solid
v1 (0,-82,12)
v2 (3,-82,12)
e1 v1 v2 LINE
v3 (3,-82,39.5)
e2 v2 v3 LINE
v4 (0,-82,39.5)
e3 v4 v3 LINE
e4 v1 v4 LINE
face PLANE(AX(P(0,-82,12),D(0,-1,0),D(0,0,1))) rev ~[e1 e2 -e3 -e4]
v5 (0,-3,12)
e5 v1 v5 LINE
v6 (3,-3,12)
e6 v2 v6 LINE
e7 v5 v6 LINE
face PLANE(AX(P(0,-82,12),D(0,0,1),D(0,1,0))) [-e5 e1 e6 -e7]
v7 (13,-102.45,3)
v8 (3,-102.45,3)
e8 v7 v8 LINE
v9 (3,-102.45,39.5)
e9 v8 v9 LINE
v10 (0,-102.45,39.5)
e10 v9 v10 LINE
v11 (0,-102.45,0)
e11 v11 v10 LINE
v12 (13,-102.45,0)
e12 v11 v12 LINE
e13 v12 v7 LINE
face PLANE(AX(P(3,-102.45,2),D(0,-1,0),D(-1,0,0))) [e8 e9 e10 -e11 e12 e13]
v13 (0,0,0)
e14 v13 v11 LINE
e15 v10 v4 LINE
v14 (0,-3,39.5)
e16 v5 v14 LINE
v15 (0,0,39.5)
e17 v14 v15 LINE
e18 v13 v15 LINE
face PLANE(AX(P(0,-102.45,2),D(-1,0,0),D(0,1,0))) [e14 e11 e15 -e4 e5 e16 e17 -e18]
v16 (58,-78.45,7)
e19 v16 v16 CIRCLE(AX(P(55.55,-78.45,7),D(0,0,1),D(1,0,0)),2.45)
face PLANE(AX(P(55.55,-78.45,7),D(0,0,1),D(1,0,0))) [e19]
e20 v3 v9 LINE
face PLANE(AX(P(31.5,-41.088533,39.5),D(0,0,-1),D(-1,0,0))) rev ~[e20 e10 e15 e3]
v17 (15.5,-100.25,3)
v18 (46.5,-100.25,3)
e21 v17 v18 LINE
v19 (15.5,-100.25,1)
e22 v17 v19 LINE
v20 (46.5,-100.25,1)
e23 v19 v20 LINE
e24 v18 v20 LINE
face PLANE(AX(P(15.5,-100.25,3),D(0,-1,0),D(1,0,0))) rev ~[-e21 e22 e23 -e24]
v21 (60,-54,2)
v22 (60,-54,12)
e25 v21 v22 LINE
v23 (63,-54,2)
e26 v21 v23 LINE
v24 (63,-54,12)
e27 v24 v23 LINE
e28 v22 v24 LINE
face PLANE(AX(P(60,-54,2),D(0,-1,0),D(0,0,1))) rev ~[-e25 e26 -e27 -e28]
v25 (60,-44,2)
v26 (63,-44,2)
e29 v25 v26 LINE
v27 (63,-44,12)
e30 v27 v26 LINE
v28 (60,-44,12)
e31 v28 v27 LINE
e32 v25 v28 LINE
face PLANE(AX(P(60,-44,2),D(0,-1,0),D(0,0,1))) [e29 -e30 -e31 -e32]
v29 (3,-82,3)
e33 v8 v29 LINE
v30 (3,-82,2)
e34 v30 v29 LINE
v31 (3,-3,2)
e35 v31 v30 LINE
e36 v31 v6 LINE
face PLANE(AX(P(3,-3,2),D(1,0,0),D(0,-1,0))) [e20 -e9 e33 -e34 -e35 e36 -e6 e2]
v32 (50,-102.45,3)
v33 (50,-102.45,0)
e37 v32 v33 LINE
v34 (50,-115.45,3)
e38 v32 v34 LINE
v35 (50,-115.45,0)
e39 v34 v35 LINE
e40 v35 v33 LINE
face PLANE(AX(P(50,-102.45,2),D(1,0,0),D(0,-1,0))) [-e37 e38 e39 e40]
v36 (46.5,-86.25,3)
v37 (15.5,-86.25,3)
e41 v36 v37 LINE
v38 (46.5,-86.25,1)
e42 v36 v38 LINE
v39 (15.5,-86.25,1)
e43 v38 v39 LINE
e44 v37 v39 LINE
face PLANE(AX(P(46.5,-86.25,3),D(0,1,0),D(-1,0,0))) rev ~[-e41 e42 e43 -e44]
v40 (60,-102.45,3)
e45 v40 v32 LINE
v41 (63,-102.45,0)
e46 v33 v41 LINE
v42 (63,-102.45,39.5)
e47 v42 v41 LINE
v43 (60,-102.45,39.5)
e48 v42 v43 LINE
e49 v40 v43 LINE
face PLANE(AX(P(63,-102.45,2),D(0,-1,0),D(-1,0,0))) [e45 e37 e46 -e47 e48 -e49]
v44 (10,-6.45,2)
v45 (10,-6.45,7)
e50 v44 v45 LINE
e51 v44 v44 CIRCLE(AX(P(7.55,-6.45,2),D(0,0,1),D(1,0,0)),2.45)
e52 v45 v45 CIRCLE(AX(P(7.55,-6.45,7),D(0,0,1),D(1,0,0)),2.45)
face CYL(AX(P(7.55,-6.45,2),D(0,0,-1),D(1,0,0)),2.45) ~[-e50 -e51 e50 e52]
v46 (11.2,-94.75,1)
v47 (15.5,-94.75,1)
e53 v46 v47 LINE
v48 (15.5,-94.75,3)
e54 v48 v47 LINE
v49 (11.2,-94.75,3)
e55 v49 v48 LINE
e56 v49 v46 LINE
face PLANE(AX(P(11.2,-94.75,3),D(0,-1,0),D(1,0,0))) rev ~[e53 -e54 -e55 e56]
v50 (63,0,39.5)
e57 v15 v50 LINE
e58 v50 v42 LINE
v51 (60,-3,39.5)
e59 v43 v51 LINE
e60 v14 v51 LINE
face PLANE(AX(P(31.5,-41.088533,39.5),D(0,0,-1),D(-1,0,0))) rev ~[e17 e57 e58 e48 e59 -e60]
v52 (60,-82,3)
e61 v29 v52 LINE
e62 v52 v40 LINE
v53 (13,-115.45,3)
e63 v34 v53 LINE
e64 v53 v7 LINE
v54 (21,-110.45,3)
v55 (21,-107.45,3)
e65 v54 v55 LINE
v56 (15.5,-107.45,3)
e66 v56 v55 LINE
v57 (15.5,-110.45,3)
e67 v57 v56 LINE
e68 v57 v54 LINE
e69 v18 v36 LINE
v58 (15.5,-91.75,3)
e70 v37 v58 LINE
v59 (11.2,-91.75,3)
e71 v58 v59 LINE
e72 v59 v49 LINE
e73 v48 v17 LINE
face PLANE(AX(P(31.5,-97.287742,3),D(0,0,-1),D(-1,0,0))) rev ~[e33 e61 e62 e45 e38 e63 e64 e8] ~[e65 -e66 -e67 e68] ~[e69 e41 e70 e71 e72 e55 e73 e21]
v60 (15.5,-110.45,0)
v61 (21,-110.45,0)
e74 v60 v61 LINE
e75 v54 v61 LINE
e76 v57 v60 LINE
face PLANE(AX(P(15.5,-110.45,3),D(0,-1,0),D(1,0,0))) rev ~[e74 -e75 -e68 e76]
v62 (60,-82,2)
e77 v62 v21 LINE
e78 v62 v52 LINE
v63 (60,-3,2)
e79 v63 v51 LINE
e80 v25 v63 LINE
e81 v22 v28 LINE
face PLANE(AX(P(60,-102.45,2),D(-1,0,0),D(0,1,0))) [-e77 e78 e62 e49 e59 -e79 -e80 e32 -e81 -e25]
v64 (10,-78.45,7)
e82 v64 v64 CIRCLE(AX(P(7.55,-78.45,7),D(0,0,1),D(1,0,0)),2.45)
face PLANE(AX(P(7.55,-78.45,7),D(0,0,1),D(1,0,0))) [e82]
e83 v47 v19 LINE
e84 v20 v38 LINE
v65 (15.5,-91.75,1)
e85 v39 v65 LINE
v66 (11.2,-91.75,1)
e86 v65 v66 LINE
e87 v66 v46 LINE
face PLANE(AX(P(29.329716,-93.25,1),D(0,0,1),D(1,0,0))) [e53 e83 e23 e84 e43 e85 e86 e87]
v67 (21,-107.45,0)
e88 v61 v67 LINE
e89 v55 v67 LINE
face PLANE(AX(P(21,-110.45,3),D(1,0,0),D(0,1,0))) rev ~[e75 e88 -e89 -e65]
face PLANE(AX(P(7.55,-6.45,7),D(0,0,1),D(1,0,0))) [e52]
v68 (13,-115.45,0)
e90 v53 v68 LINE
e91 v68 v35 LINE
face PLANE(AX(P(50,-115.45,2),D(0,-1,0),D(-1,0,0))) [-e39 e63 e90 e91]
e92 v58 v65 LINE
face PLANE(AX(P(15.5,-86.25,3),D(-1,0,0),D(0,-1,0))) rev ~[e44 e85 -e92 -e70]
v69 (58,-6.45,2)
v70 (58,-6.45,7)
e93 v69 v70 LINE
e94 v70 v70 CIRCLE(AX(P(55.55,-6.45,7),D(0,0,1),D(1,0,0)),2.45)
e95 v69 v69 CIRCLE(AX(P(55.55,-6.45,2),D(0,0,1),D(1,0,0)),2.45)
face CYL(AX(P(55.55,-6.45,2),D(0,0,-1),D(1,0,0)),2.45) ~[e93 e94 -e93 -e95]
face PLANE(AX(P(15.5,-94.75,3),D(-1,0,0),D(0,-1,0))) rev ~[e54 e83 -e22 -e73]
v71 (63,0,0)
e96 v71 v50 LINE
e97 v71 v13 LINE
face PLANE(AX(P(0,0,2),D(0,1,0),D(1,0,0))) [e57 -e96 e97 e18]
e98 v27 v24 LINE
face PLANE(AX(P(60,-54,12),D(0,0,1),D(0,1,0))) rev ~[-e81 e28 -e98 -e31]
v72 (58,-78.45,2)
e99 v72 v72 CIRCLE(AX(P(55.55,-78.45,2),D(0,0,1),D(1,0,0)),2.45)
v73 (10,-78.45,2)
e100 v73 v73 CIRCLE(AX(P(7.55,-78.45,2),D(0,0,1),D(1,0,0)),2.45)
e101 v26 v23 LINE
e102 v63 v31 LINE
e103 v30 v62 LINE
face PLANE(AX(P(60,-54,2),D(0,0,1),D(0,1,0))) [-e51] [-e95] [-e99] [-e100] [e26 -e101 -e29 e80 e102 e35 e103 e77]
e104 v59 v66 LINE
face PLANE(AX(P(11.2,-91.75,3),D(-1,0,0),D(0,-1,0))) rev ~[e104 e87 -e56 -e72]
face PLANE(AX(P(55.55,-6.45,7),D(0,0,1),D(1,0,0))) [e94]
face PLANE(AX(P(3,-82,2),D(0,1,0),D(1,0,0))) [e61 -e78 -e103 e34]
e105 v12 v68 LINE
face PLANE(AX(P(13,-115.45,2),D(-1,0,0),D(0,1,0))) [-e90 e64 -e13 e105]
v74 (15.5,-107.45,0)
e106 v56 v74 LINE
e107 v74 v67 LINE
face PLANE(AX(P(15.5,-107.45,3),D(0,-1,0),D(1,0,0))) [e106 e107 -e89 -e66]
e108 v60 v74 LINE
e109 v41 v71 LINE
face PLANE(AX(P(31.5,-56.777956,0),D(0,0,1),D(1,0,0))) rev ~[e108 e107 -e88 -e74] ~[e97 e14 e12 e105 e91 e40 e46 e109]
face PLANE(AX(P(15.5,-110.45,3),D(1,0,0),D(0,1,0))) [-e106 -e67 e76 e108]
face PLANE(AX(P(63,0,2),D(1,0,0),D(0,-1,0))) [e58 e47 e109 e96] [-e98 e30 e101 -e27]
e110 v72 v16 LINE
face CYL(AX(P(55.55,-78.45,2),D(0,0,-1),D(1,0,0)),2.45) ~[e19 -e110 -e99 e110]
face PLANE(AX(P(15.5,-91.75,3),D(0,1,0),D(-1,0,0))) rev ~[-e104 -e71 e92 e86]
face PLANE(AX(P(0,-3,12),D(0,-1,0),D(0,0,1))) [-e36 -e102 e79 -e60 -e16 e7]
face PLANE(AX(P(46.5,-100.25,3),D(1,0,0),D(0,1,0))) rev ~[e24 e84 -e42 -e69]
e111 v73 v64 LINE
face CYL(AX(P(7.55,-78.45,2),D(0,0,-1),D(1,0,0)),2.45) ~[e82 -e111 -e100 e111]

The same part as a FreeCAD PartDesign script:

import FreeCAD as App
import Part
import Sketcher
from FreeCAD import Vector
Q = App.Units.Quantity

doc = App.newDocument("Part")
body = doc.addObject("PartDesign::Body", "Body")

sketch1 = doc.addObject("Sketcher::SketchObject", "Sketch")
body.addObject(sketch1)
sketch1.AttachmentSupport = (doc.XY_Plane, [""])
sketch1.MapMode = "FlatFace"
sketch1.addGeometry(Part.LineSegment(Vector(13, -102, 0), Vector(13, -115, 0)), False)
sketch1.addGeometry(Part.LineSegment(Vector(13, -115, 0), Vector(50, -115, 0)), False)
sketch1.addGeometry(Part.LineSegment(Vector(50, -115, 0), Vector(50, -102, 0)), False)
sketch1.addGeometry(Part.LineSegment(Vector(50, -102, 0), Vector(63, -102, 0)), False)
sketch1.addGeometry(Part.LineSegment(Vector(63, -102, 0), Vector(63, 0, 0)), False)
sketch1.addGeometry(Part.LineSegment(Vector(63, 0, 0), Vector(0, 0, 0)), False)
sketch1.addGeometry(Part.LineSegment(Vector(0, 0, 0), Vector(0, -102, 0)), False)
sketch1.addGeometry(Part.LineSegment(Vector(0, -102, 0), Vector(13, -102, 0)), False)
sketch1.addConstraint(Sketcher.Constraint("Coincident", 0, 2, 1, 1))
sketch1.addConstraint(Sketcher.Constraint("Coincident", 1, 2, 2, 1))
sketch1.addConstraint(Sketcher.Constraint("Coincident", 2, 2, 3, 1))
sketch1.addConstraint(Sketcher.Constraint("Coincident", 3, 2, 4, 1))
sketch1.addConstraint(Sketcher.Constraint("Coincident", 4, 2, 5, 1))
sketch1.addConstraint(Sketcher.Constraint("Coincident", 5, 2, 6, 1))
sketch1.addConstraint(Sketcher.Constraint("Coincident", 6, 2, 7, 1))
sketch1.addConstraint(Sketcher.Constraint("Coincident", 7, 2, 0, 1))
sketch1.addConstraint(Sketcher.Constraint("Vertical", 0))
sketch1.addConstraint(Sketcher.Constraint("Horizontal", 1))
sketch1.addConstraint(Sketcher.Constraint("Vertical", 2))
sketch1.addConstraint(Sketcher.Constraint("Horizontal", 3))
sketch1.addConstraint(Sketcher.Constraint("Vertical", 4))
sketch1.addConstraint(Sketcher.Constraint("Horizontal", 5))
sketch1.addConstraint(Sketcher.Constraint("Vertical", 6))
sketch1.addConstraint(Sketcher.Constraint("Horizontal", 7))
sketch1.addConstraint(Sketcher.Constraint("Coincident", 5, 2, -1, 1))
sketch1.addConstraint(Sketcher.Constraint("Horizontal", 3, 2, 6, 2))
sketch1.addConstraint(Sketcher.Constraint("Equal", 3, 7))
sketch1.addConstraint(Sketcher.Constraint("Equal", 7, 0))
sketch1.addConstraint(Sketcher.Constraint("DistanceX", 1, 1, 1, 2, Q("37 mm")))
sketch1.addConstraint(Sketcher.Constraint("DistanceX", 3, 1, 3, 2, Q("13 mm")))
sketch1.addConstraint(Sketcher.Constraint("DistanceY", 4, 1, 4, 2, Q("102.45 mm")))
pad1 = doc.addObject("PartDesign::Pad", "Pad")
body.addObject(pad1)
pad1.Profile = sketch1
pad1.Length = 2

sketch2 = doc.addObject("Sketcher::SketchObject", "Sketch001")
body.addObject(sketch2)
sketch2.AttachmentSupport = (doc.XY_Plane, [""])
sketch2.MapMode = "FlatFace"
sketch2.AttachmentOffset = App.Placement(Vector(0, 0, 2), App.Rotation())
sketch2.addGeometry(Part.Circle(Vector(7.5, -6.5, 0), Vector(0, 0, 1), 2.5), False)
sketch2.addGeometry(Part.Circle(Vector(7.5, -78.5, 0), Vector(0, 0, 1), 2.5), False)
sketch2.addGeometry(Part.Circle(Vector(55.5, -78.5, 0), Vector(0, 0, 1), 2.5), False)
sketch2.addGeometry(Part.Circle(Vector(55.5, -6.5, 0), Vector(0, 0, 1), 2.5), False)
sketch2.addConstraint(Sketcher.Constraint("Equal", 0, 1))
sketch2.addConstraint(Sketcher.Constraint("Equal", 1, 2))
sketch2.addConstraint(Sketcher.Constraint("Equal", 2, 3))
sketch2.addConstraint(Sketcher.Constraint("Horizontal", 1, 3, 2, 3))
sketch2.addConstraint(Sketcher.Constraint("Horizontal", 0, 3, 3, 3))
sketch2.addConstraint(Sketcher.Constraint("Vertical", 0, 3, 1, 3))
sketch2.addConstraint(Sketcher.Constraint("Vertical", 2, 3, 3, 3))
sketch2.addConstraint(Sketcher.Constraint("Diameter", 0, Q("4.9 mm")))
sketch2.addConstraint(Sketcher.Constraint("DistanceY", 1, 3, 0, 3, Q("72 mm")))
sketch2.addConstraint(Sketcher.Constraint("DistanceX", 1, 3, 2, 3, Q("48 mm")))
sketch2.addConstraint(Sketcher.Constraint("DistanceX", -1, 1, 0, 3, Q("7.55 mm")))
sketch2.addConstraint(Sketcher.Constraint("DistanceY", 0, 3, -1, 1, Q("6.45 mm")))
pad2 = doc.addObject("PartDesign::Pad", "Pad001")
body.addObject(pad2)
pad2.Profile = sketch2
pad2.Length = 5

sketch3 = doc.addObject("Sketcher::SketchObject", "Sketch002")
body.addObject(sketch3)
sketch3.AttachmentSupport = (doc.XY_Plane, [""])
sketch3.MapMode = "FlatFace"
sketch3.AttachmentOffset = App.Placement(Vector(0, 0, 2), App.Rotation())
sketch3.addGeometry(Part.LineSegment(Vector(63, -102.5, 0), Vector(63, 0, 0)), False)
sketch3.addGeometry(Part.LineSegment(Vector(63, 0, 0), Vector(0, 0, 0)), False)
sketch3.addGeometry(Part.LineSegment(Vector(0, 0, 0), Vector(0, -102.5, 0)), False)
sketch3.addGeometry(Part.LineSegment(Vector(0, -102.5, 0), Vector(3, -102.5, 0)), False)
sketch3.addGeometry(Part.LineSegment(Vector(3, -102.5, 0), Vector(3, -3, 0)), False)
sketch3.addGeometry(Part.LineSegment(Vector(3, -3, 0), Vector(60, -3, 0)), False)
sketch3.addGeometry(Part.LineSegment(Vector(60, -3, 0), Vector(60, -102.5, 0)), False)
sketch3.addGeometry(Part.LineSegment(Vector(60, -102.5, 0), Vector(63, -102.5, 0)), False)
sketch3.addConstraint(Sketcher.Constraint("Coincident", 0, 2, 1, 1))
sketch3.addConstraint(Sketcher.Constraint("Coincident", 1, 2, 2, 1))
sketch3.addConstraint(Sketcher.Constraint("Coincident", 2, 2, 3, 1))
sketch3.addConstraint(Sketcher.Constraint("Coincident", 3, 2, 4, 1))
sketch3.addConstraint(Sketcher.Constraint("Coincident", 4, 2, 5, 1))
sketch3.addConstraint(Sketcher.Constraint("Coincident", 5, 2, 6, 1))
sketch3.addConstraint(Sketcher.Constraint("Coincident", 6, 2, 7, 1))
sketch3.addConstraint(Sketcher.Constraint("Coincident", 7, 2, 0, 1))
sketch3.addConstraint(Sketcher.Constraint("Vertical", 0))
sketch3.addConstraint(Sketcher.Constraint("Horizontal", 1))
sketch3.addConstraint(Sketcher.Constraint("Vertical", 2))
sketch3.addConstraint(Sketcher.Constraint("Horizontal", 3))
sketch3.addConstraint(Sketcher.Constraint("Vertical", 4))
sketch3.addConstraint(Sketcher.Constraint("Horizontal", 5))
sketch3.addConstraint(Sketcher.Constraint("Vertical", 6))
sketch3.addConstraint(Sketcher.Constraint("Horizontal", 7))
sketch3.addConstraint(Sketcher.Constraint("Coincident", 1, 2, -1, 1))
sketch3.addConstraint(Sketcher.Constraint("Horizontal", 3, 2, 6, 2))
sketch3.addConstraint(Sketcher.Constraint("Equal", 3, 7))
sketch3.addConstraint(Sketcher.Constraint("DistanceX", 1, 2, 1, 1, Q("63 mm")))
sketch3.addConstraint(Sketcher.Constraint("DistanceX", 3, 1, 3, 2, Q("3 mm")))
sketch3.addConstraint(Sketcher.Constraint("DistanceY", 4, 2, -1, 1, Q("3 mm")))
sketch3.addConstraint(Sketcher.Constraint("DistanceY", 0, 1, 0, 2, Q("102.45 mm")))
pad3 = doc.addObject("PartDesign::Pad", "Pad002")
body.addObject(pad3)
pad3.Profile = sketch3
pad3.Length = 37.5

sketch4 = doc.addObject("Sketcher::SketchObject", "Sketch003")
body.addObject(sketch4)
sketch4.AttachmentSupport = (doc.YZ_Plane, [""])
sketch4.MapMode = "FlatFace"
sketch4.AttachmentOffset = App.Placement(Vector(0, 0, 60), App.Rotation())
sketch4.addGeometry(Part.LineSegment(Vector(-44, 2, 0), Vector(-54, 2, 0)), False)
sketch4.addGeometry(Part.LineSegment(Vector(-54, 2, 0), Vector(-54, 12, 0)), False)
sketch4.addGeometry(Part.LineSegment(Vector(-54, 12, 0), Vector(-44, 12, 0)), False)
sketch4.addGeometry(Part.LineSegment(Vector(-44, 12, 0), Vector(-44, 2, 0)), False)
sketch4.addConstraint(Sketcher.Constraint("Coincident", 0, 2, 1, 1))
sketch4.addConstraint(Sketcher.Constraint("Coincident", 1, 2, 2, 1))
sketch4.addConstraint(Sketcher.Constraint("Coincident", 2, 2, 3, 1))
sketch4.addConstraint(Sketcher.Constraint("Coincident", 3, 2, 0, 1))
sketch4.addConstraint(Sketcher.Constraint("Horizontal", 0))
sketch4.addConstraint(Sketcher.Constraint("Vertical", 1))
sketch4.addConstraint(Sketcher.Constraint("Horizontal", 2))
sketch4.addConstraint(Sketcher.Constraint("Vertical", 3))
sketch4.addConstraint(Sketcher.Constraint("Equal", 2, 1))
sketch4.addConstraint(Sketcher.Constraint("DistanceX", 0, 2, 0, 1, Q("10 mm")))
sketch4.addConstraint(Sketcher.Constraint("DistanceX", 0, 2, -1, 1, Q("54 mm")))
sketch4.addConstraint(Sketcher.Constraint("DistanceY", -1, 1, 0, 2, Q("2 mm")))
pocket1 = doc.addObject("PartDesign::Pocket", "Pocket")
body.addObject(pocket1)
pocket1.Profile = sketch4
pocket1.Type = "ThroughAll"
pocket1.Reversed = True

sketch5 = doc.addObject("Sketcher::SketchObject", "Sketch004")
body.addObject(sketch5)
sketch5.AttachmentSupport = (doc.YZ_Plane, [""])
sketch5.MapMode = "FlatFace"
sketch5.addGeometry(Part.LineSegment(Vector(-3, 12, 0), Vector(-82, 12, 0)), False)
sketch5.addGeometry(Part.LineSegment(Vector(-82, 12, 0), Vector(-82, 40, 0)), False)
sketch5.addGeometry(Part.LineSegment(Vector(-82, 40, 0), Vector(-3, 40, 0)), False)
sketch5.addGeometry(Part.LineSegment(Vector(-3, 40, 0), Vector(-3, 12, 0)), False)
sketch5.addConstraint(Sketcher.Constraint("Coincident", 0, 2, 1, 1))
sketch5.addConstraint(Sketcher.Constraint("Coincident", 1, 2, 2, 1))
sketch5.addConstraint(Sketcher.Constraint("Coincident", 2, 2, 3, 1))
sketch5.addConstraint(Sketcher.Constraint("Coincident", 3, 2, 0, 1))
sketch5.addConstraint(Sketcher.Constraint("Horizontal", 0))
sketch5.addConstraint(Sketcher.Constraint("Vertical", 1))
sketch5.addConstraint(Sketcher.Constraint("Horizontal", 2))
sketch5.addConstraint(Sketcher.Constraint("Vertical", 3))
sketch5.addConstraint(Sketcher.Constraint("DistanceX", 0, 2, 0, 1, Q("79 mm")))
sketch5.addConstraint(Sketcher.Constraint("DistanceY", 1, 1, 1, 2, Q("27.5 mm")))
sketch5.addConstraint(Sketcher.Constraint("DistanceX", 0, 2, -1, 1, Q("82 mm")))
sketch5.addConstraint(Sketcher.Constraint("DistanceY", -1, 1, 0, 2, Q("12 mm")))
pocket2 = doc.addObject("PartDesign::Pocket", "Pocket001")
body.addObject(pocket2)
pocket2.Profile = sketch5
pocket2.Length = 3
pocket2.Reversed = True

sketch6 = doc.addObject("Sketcher::SketchObject", "Sketch005")
body.addObject(sketch6)
sketch6.AttachmentSupport = (doc.XY_Plane, [""])
sketch6.MapMode = "FlatFace"
sketch6.AttachmentOffset = App.Placement(Vector(0, 0, 2), App.Rotation())
sketch6.addGeometry(Part.LineSegment(Vector(60, -82, 0), Vector(3, -82, 0)), False)
sketch6.addGeometry(Part.LineSegment(Vector(3, -82, 0), Vector(3, -102, 0)), False)
sketch6.addGeometry(Part.LineSegment(Vector(3, -102, 0), Vector(13, -102, 0)), False)
sketch6.addGeometry(Part.LineSegment(Vector(13, -102, 0), Vector(13, -115, 0)), False)
sketch6.addGeometry(Part.LineSegment(Vector(13, -115, 0), Vector(50, -115, 0)), False)
sketch6.addGeometry(Part.LineSegment(Vector(50, -115, 0), Vector(50, -102, 0)), False)
sketch6.addGeometry(Part.LineSegment(Vector(50, -102, 0), Vector(60, -102, 0)), False)
sketch6.addGeometry(Part.LineSegment(Vector(60, -102, 0), Vector(60, -82, 0)), False)
sketch6.addConstraint(Sketcher.Constraint("Coincident", 0, 2, 1, 1))
sketch6.addConstraint(Sketcher.Constraint("Coincident", 1, 2, 2, 1))
sketch6.addConstraint(Sketcher.Constraint("Coincident", 2, 2, 3, 1))
sketch6.addConstraint(Sketcher.Constraint("Coincident", 3, 2, 4, 1))
sketch6.addConstraint(Sketcher.Constraint("Coincident", 4, 2, 5, 1))
sketch6.addConstraint(Sketcher.Constraint("Coincident", 5, 2, 6, 1))
sketch6.addConstraint(Sketcher.Constraint("Coincident", 6, 2, 7, 1))
sketch6.addConstraint(Sketcher.Constraint("Coincident", 7, 2, 0, 1))
sketch6.addConstraint(Sketcher.Constraint("Horizontal", 0))
sketch6.addConstraint(Sketcher.Constraint("Vertical", 1))
sketch6.addConstraint(Sketcher.Constraint("Horizontal", 2))
sketch6.addConstraint(Sketcher.Constraint("Vertical", 3))
sketch6.addConstraint(Sketcher.Constraint("Horizontal", 4))
sketch6.addConstraint(Sketcher.Constraint("Vertical", 5))
sketch6.addConstraint(Sketcher.Constraint("Horizontal", 6))
sketch6.addConstraint(Sketcher.Constraint("Vertical", 7))
sketch6.addConstraint(Sketcher.Constraint("Horizontal", 2, 2, 5, 2))
sketch6.addConstraint(Sketcher.Constraint("Equal", 2, 6))
sketch6.addConstraint(Sketcher.Constraint("DistanceX", 0, 2, 0, 1, Q("57 mm")))
sketch6.addConstraint(Sketcher.Constraint("DistanceX", 2, 1, 2, 2, Q("10 mm")))
sketch6.addConstraint(Sketcher.Constraint("DistanceY", 3, 2, 3, 1, Q("13 mm")))
sketch6.addConstraint(Sketcher.Constraint("DistanceX", -1, 1, 0, 2, Q("3 mm")))
sketch6.addConstraint(Sketcher.Constraint("DistanceY", 0, 2, -1, 1, Q("82 mm")))
sketch6.addConstraint(Sketcher.Constraint("DistanceY", 1, 2, 1, 1, Q("20.45 mm")))
pad4 = doc.addObject("PartDesign::Pad", "Pad003")
body.addObject(pad4)
pad4.Profile = sketch6
pad4.Length = 1

sketch7 = doc.addObject("Sketcher::SketchObject", "Sketch006")
body.addObject(sketch7)
sketch7.AttachmentSupport = (doc.XY_Plane, [""])
sketch7.MapMode = "FlatFace"
sketch7.AttachmentOffset = App.Placement(Vector(0, 0, 3), App.Rotation())
sketch7.addGeometry(Part.LineSegment(Vector(15.5, -86.2, 0), Vector(15.5, -91.8, 0)), False)
sketch7.addGeometry(Part.LineSegment(Vector(15.5, -91.8, 0), Vector(11.2, -91.8, 0)), False)
sketch7.addGeometry(Part.LineSegment(Vector(11.2, -91.8, 0), Vector(11.2, -94.8, 0)), False)
sketch7.addGeometry(Part.LineSegment(Vector(11.2, -94.8, 0), Vector(15.5, -94.8, 0)), False)
sketch7.addGeometry(Part.LineSegment(Vector(15.5, -94.8, 0), Vector(15.5, -100.2, 0)), False)
sketch7.addGeometry(Part.LineSegment(Vector(15.5, -100.2, 0), Vector(46.5, -100.2, 0)), False)
sketch7.addGeometry(Part.LineSegment(Vector(46.5, -100.2, 0), Vector(46.5, -86.2, 0)), False)
sketch7.addGeometry(Part.LineSegment(Vector(46.5, -86.2, 0), Vector(15.5, -86.2, 0)), False)
sketch7.addConstraint(Sketcher.Constraint("Coincident", 0, 2, 1, 1))
sketch7.addConstraint(Sketcher.Constraint("Coincident", 1, 2, 2, 1))
sketch7.addConstraint(Sketcher.Constraint("Coincident", 2, 2, 3, 1))
sketch7.addConstraint(Sketcher.Constraint("Coincident", 3, 2, 4, 1))
sketch7.addConstraint(Sketcher.Constraint("Coincident", 4, 2, 5, 1))
sketch7.addConstraint(Sketcher.Constraint("Coincident", 5, 2, 6, 1))
sketch7.addConstraint(Sketcher.Constraint("Coincident", 6, 2, 7, 1))
sketch7.addConstraint(Sketcher.Constraint("Coincident", 7, 2, 0, 1))
sketch7.addConstraint(Sketcher.Constraint("Vertical", 0))
sketch7.addConstraint(Sketcher.Constraint("Horizontal", 1))
sketch7.addConstraint(Sketcher.Constraint("Vertical", 2))
sketch7.addConstraint(Sketcher.Constraint("Horizontal", 3))
sketch7.addConstraint(Sketcher.Constraint("Vertical", 4))
sketch7.addConstraint(Sketcher.Constraint("Horizontal", 5))
sketch7.addConstraint(Sketcher.Constraint("Vertical", 6))
sketch7.addConstraint(Sketcher.Constraint("Horizontal", 7))
sketch7.addConstraint(Sketcher.Constraint("Vertical", 0, 2, 3, 2))
sketch7.addConstraint(Sketcher.Constraint("Equal", 0, 4))
sketch7.addConstraint(Sketcher.Constraint("DistanceX", 5, 1, 5, 2, Q("31 mm")))
sketch7.addConstraint(Sketcher.Constraint("DistanceY", 2, 2, 2, 1, Q("3 mm")))
sketch7.addConstraint(Sketcher.Constraint("DistanceY", 6, 1, 6, 2, Q("14 mm")))
sketch7.addConstraint(Sketcher.Constraint("DistanceX", 1, 2, 1, 1, Q("4.3 mm")))
sketch7.addConstraint(Sketcher.Constraint("DistanceX", -1, 1, 0, 2, Q("15.5 mm")))
sketch7.addConstraint(Sketcher.Constraint("DistanceY", 0, 2, -1, 1, Q("91.75 mm")))
pocket3 = doc.addObject("PartDesign::Pocket", "Pocket002")
body.addObject(pocket3)
pocket3.Profile = sketch7
pocket3.Length = 2

sketch8 = doc.addObject("Sketcher::SketchObject", "Sketch007")
body.addObject(sketch8)
sketch8.AttachmentSupport = (doc.XY_Plane, [""])
sketch8.MapMode = "FlatFace"
sketch8.AttachmentOffset = App.Placement(Vector(0, 0, 3), App.Rotation())
sketch8.addGeometry(Part.LineSegment(Vector(15.5, -107.5, 0), Vector(15.5, -110.5, 0)), False)
sketch8.addGeometry(Part.LineSegment(Vector(15.5, -110.5, 0), Vector(21, -110.5, 0)), False)
sketch8.addGeometry(Part.LineSegment(Vector(21, -110.5, 0), Vector(21, -107.5, 0)), False)
sketch8.addGeometry(Part.LineSegment(Vector(21, -107.5, 0), Vector(15.5, -107.5, 0)), False)
sketch8.addConstraint(Sketcher.Constraint("Coincident", 0, 2, 1, 1))
sketch8.addConstraint(Sketcher.Constraint("Coincident", 1, 2, 2, 1))
sketch8.addConstraint(Sketcher.Constraint("Coincident", 2, 2, 3, 1))
sketch8.addConstraint(Sketcher.Constraint("Coincident", 3, 2, 0, 1))
sketch8.addConstraint(Sketcher.Constraint("Vertical", 0))
sketch8.addConstraint(Sketcher.Constraint("Horizontal", 1))
sketch8.addConstraint(Sketcher.Constraint("Vertical", 2))
sketch8.addConstraint(Sketcher.Constraint("Horizontal", 3))
sketch8.addConstraint(Sketcher.Constraint("DistanceY", 0, 2, 0, 1, Q("3 mm")))
sketch8.addConstraint(Sketcher.Constraint("DistanceX", 1, 1, 1, 2, Q("5.5 mm")))
sketch8.addConstraint(Sketcher.Constraint("DistanceX", -1, 1, 1, 2, Q("21 mm")))
sketch8.addConstraint(Sketcher.Constraint("DistanceY", 0, 2, -1, 1, Q("110.45 mm")))
pocket4 = doc.addObject("PartDesign::Pocket", "Pocket003")
body.addObject(pocket4)
pocket4.Profile = sketch8
pocket4.Type = "ThroughAll"

doc.recompute()
